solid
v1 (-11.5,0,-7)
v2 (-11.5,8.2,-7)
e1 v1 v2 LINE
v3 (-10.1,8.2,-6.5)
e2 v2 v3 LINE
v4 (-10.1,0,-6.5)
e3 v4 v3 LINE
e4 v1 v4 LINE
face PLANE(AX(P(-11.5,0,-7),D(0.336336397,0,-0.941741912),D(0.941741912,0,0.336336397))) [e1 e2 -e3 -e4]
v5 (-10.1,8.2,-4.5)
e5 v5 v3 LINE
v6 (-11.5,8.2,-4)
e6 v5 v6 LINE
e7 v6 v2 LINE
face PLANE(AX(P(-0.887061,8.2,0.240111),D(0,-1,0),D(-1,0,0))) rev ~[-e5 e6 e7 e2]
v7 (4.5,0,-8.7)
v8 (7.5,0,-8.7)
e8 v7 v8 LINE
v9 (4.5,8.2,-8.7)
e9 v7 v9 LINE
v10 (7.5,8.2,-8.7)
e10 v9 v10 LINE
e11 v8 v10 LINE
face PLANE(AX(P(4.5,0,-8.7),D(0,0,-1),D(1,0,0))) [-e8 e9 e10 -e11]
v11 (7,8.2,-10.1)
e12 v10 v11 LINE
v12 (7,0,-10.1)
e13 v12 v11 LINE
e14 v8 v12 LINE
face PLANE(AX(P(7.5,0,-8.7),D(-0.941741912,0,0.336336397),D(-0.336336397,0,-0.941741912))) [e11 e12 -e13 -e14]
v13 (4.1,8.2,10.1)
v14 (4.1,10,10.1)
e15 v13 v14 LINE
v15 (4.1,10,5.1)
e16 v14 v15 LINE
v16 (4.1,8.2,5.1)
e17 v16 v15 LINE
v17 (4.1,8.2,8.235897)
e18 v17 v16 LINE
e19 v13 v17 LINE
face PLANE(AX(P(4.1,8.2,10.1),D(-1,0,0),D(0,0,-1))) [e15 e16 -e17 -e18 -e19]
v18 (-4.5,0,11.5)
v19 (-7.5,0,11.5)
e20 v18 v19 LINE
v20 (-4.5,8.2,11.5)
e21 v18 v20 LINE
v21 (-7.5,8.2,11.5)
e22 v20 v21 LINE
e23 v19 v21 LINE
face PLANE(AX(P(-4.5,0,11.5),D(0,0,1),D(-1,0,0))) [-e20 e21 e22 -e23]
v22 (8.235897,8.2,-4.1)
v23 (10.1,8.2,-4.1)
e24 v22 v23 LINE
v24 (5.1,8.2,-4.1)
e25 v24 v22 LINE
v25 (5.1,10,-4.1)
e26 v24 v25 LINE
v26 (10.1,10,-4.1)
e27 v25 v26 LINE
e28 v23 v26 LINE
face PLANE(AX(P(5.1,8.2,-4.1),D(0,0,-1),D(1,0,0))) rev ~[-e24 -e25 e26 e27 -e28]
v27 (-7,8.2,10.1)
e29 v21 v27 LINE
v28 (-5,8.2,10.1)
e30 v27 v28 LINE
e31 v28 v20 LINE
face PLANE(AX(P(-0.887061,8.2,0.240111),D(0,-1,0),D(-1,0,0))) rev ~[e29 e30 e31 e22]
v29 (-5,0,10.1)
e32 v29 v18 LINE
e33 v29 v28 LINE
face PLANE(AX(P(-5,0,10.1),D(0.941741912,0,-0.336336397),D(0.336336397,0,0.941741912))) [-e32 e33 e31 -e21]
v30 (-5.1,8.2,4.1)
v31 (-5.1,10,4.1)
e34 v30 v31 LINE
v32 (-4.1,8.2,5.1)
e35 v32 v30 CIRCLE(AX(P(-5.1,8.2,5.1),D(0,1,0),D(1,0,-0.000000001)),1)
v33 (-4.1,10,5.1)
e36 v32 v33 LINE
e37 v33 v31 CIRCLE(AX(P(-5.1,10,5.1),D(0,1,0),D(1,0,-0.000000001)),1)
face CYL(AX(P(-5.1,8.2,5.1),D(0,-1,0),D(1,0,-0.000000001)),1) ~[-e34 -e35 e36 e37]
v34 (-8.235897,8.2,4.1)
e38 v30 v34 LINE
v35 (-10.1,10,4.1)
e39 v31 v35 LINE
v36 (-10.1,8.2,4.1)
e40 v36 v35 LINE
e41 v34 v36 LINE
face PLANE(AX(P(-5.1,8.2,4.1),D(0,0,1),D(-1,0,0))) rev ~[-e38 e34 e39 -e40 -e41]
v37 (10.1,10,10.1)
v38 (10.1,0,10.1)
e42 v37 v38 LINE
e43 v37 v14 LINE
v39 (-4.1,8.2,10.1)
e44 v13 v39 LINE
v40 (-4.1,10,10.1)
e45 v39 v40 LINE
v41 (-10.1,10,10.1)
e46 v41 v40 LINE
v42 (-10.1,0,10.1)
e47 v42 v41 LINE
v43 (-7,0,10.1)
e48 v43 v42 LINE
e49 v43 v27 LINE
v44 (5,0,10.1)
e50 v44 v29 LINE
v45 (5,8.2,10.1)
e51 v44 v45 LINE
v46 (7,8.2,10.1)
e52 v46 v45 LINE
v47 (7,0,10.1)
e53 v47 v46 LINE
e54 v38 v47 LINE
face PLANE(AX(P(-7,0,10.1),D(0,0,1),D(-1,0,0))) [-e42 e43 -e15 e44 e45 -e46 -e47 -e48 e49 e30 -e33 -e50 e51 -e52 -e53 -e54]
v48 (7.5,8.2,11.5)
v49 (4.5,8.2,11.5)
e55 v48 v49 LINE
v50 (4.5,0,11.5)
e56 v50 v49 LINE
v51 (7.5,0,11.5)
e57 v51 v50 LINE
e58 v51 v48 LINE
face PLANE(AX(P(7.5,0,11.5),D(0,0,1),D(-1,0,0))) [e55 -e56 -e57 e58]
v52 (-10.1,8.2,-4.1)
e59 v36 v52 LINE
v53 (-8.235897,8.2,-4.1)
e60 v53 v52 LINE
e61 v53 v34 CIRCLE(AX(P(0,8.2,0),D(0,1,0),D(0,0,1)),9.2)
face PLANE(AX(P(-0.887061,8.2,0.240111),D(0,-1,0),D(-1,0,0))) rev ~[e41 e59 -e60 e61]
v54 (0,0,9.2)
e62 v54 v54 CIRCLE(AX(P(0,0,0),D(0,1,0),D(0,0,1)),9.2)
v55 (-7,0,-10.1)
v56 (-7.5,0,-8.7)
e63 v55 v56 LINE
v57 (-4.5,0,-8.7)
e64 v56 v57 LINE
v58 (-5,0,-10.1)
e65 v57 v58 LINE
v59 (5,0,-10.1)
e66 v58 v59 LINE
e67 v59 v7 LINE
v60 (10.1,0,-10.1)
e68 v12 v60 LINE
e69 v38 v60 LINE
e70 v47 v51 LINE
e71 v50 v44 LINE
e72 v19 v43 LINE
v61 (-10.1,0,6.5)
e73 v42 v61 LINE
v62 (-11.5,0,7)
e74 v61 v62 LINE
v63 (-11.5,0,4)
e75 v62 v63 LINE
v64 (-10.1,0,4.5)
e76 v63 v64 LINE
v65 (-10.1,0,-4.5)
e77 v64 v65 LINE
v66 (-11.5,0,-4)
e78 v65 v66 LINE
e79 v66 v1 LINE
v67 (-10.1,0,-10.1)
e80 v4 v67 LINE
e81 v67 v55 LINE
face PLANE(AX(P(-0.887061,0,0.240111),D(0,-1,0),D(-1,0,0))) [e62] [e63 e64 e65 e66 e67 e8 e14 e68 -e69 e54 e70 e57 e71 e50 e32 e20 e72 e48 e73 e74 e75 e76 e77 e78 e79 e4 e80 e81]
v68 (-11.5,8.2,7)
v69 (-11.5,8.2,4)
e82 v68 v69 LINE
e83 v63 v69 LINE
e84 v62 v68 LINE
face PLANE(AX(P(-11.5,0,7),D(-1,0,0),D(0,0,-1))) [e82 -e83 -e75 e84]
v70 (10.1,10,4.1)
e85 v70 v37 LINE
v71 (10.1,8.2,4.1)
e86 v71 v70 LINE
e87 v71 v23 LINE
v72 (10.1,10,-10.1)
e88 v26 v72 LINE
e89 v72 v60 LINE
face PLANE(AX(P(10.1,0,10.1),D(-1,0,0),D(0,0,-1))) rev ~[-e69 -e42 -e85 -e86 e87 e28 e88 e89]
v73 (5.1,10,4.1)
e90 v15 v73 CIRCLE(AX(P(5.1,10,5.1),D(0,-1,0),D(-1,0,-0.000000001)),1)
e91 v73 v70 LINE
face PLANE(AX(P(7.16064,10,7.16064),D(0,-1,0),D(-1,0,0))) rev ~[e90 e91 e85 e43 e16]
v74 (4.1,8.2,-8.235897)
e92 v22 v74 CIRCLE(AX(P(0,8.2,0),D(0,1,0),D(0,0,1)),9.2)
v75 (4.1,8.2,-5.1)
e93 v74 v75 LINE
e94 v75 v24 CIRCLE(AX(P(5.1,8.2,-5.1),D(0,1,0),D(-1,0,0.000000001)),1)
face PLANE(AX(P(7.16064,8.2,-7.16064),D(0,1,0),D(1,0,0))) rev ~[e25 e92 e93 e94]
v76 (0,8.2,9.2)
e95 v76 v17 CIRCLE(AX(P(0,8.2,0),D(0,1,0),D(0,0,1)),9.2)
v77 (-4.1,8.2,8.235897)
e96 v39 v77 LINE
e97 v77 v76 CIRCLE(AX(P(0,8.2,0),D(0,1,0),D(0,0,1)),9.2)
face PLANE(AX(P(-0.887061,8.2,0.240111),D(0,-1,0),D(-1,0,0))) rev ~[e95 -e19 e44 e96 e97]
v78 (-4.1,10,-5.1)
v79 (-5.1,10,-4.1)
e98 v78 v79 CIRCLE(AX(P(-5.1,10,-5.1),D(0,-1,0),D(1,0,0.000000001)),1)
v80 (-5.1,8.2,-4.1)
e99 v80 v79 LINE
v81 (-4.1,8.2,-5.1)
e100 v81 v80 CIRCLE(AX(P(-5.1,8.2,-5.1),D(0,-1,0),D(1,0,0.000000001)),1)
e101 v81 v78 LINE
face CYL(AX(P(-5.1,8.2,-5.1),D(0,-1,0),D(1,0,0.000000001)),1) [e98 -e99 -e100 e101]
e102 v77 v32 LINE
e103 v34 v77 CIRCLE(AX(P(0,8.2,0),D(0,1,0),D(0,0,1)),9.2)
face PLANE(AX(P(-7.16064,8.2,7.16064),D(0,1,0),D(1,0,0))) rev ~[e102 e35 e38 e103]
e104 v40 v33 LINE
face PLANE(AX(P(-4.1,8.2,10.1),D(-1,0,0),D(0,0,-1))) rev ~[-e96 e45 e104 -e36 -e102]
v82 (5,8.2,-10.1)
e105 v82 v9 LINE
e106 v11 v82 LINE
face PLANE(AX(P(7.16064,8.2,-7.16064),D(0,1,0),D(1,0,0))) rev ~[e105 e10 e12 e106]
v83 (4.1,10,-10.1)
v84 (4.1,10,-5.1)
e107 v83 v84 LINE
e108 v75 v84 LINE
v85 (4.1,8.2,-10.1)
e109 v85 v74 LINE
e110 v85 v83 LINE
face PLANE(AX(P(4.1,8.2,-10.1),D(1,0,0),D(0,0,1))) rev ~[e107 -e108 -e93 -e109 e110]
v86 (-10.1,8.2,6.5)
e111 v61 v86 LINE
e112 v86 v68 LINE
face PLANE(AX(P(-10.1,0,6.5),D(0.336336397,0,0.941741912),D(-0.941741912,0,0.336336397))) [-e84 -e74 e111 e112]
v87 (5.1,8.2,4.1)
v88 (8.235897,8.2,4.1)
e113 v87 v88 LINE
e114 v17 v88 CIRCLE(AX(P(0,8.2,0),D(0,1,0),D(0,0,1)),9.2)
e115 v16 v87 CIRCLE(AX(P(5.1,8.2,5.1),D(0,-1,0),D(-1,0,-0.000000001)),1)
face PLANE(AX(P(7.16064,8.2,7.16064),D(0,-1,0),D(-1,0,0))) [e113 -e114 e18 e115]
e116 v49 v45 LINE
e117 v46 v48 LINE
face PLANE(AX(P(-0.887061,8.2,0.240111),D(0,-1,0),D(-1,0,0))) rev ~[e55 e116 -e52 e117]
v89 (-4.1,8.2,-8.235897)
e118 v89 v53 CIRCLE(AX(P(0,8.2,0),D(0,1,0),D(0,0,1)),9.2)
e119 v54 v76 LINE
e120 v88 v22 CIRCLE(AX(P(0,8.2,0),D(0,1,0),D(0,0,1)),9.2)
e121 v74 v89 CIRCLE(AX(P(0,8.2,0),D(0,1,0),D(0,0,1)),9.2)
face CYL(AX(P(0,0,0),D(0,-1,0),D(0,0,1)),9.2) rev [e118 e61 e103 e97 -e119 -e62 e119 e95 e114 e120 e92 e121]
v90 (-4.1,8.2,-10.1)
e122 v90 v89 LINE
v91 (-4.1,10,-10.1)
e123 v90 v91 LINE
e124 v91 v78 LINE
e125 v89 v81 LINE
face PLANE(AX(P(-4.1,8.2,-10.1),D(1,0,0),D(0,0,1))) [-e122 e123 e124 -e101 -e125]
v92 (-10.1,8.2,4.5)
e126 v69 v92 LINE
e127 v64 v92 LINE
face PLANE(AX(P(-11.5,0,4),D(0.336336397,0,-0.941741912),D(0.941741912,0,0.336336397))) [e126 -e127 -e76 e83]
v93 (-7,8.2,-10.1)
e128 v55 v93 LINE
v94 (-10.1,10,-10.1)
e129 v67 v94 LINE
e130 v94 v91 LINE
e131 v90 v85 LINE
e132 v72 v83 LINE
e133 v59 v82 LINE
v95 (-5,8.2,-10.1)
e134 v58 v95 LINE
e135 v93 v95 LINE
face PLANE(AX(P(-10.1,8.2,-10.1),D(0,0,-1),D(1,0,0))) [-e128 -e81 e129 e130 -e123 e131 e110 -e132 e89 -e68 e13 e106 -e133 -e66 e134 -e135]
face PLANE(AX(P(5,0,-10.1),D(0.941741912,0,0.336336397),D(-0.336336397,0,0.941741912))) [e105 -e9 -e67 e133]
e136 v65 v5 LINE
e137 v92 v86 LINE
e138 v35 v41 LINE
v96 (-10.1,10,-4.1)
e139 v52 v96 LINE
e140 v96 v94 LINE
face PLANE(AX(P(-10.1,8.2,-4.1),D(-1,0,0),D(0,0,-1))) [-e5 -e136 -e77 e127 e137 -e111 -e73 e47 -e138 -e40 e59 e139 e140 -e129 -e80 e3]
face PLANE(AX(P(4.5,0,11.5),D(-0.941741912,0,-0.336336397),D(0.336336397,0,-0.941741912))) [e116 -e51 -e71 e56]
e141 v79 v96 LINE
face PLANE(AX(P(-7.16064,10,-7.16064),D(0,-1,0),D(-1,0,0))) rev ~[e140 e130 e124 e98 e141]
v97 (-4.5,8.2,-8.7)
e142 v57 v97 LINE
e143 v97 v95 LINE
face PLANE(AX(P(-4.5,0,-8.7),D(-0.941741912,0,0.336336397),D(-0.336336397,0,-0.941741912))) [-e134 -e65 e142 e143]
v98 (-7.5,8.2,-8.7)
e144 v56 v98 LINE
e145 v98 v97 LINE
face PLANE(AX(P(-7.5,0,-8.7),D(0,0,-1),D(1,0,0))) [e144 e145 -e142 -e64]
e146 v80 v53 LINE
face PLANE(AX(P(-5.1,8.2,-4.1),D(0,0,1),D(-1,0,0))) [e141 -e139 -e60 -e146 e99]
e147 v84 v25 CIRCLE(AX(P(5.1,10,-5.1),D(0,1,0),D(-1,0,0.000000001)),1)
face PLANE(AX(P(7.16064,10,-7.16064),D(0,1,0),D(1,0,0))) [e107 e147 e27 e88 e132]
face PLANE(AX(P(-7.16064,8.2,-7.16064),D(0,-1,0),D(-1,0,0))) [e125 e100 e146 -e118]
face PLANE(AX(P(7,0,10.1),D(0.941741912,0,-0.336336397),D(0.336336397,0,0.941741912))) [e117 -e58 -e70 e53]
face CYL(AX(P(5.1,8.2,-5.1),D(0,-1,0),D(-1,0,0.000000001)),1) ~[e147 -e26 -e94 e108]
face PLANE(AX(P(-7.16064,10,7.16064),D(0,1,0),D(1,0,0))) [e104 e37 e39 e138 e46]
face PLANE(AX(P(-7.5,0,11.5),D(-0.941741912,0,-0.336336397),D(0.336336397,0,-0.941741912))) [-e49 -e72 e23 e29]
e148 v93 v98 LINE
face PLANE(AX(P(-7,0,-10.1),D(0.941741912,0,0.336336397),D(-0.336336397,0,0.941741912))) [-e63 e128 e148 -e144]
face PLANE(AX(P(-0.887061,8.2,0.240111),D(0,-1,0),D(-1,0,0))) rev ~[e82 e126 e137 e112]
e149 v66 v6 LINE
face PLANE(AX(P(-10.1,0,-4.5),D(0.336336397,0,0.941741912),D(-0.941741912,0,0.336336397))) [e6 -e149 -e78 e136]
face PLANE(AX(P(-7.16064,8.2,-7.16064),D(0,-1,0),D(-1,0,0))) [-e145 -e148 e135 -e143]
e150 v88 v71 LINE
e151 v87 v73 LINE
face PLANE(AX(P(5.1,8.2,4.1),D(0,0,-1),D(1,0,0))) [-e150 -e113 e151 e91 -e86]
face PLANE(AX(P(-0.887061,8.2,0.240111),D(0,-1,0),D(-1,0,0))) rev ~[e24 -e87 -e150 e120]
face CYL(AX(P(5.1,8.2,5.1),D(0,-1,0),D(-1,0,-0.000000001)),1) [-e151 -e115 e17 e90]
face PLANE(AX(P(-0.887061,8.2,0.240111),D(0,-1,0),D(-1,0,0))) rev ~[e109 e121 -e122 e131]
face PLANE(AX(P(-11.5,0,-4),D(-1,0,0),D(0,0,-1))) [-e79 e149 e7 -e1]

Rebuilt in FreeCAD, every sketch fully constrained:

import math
import FreeCAD as App
import Part
import Sketcher

V = App.Vector


def add_polygon(sketch, points):
    """Adds a closed chain of lines whose ends are joined by coincident constraints."""
    first, n = sketch.GeometryCount, len(points)
    for a, b in zip(points, points[1:] + points[:1]):
        sketch.addGeometry(Part.LineSegment(App.Vector(*a, 0), App.Vector(*b, 0)), False)
    for i in range(n):
        sketch.addConstraint(Sketcher.Constraint("Coincident", first + i, 2, first + (i + 1) % n, 1))

doc = App.newDocument("Part")
body = doc.addObject("PartDesign::Body", "Body")

# Sketch on XZ plane
sketch1 = body.newObject("Sketcher::SketchObject", "Sketch")
sketch1.AttachmentSupport = (doc.getObject("XZ_Plane"), [""])
sketch1.MapMode = "FlatFace"
add_polygon(sketch1, [(-7, -10.1), (-10.1, -10.1), (-10.1, -6.5), (-11.5, -7), (-11.5, -4), (-10.1, -4.5), (-10.1, 4.5), (-11.5, 4), (-11.5, 7), (-10.1, 6.5), (-10.1, 10.1), (-7, 10.1), (-7.5, 11.5), (-4.5, 11.5), (-5, 10.1), (5, 10.1), (4.5, 11.5), (7.5, 11.5), (7, 10.1), (10.1, 10.1), (10.1, -10.1), (7, -10.1), (7.5, -8.7), (4.5, -8.7), (5, -10.1), (-5, -10.1), (-4.5, -8.7), (-7.5, -8.7)])  # lines 0-27
sketch1.addGeometry(Part.Circle(V(0, 0, 0), V(0, 0, 1), 9.2), False)  # 28
sketch1.addConstraint([
    Sketcher.Constraint("Horizontal", 0),
    Sketcher.Constraint("Vertical", 1),
    Sketcher.Constraint("Vertical", 3),
    Sketcher.Constraint("Vertical", 5),
    Sketcher.Constraint("Vertical", 7),
    Sketcher.Constraint("Vertical", 9),
    Sketcher.Constraint("Horizontal", 10),
    Sketcher.Constraint("Horizontal", 12),
    Sketcher.Constraint("Horizontal", 14),
    Sketcher.Constraint("Horizontal", 16),
    Sketcher.Constraint("Horizontal", 18),
    Sketcher.Constraint("Vertical", 19),
    Sketcher.Constraint("Horizontal", 20),
    Sketcher.Constraint("Horizontal", 22),
    Sketcher.Constraint("Horizontal", 24),
    Sketcher.Constraint("Horizontal", 26),
    Sketcher.Constraint("Coincident", 28, 3, -1, 1),
    Sketcher.Constraint("Symmetric", 0, 2, 18, 2, -1, 1),
    Sketcher.Constraint("Symmetric", 9, 2, 19, 2, -1, 1),
    Sketcher.Constraint("Symmetric", 13, 2, 23, 2, -1, 1),
    Sketcher.Constraint("Symmetric", 12, 2, 15, 2, -2),
    Sketcher.Constraint("Symmetric", 10, 2, 17, 2, -2),
    Sketcher.Constraint("Symmetric", 22, 2, 25, 2, -2),
    Sketcher.Constraint("Symmetric", 3, 2, 6, 2, -1),
    Sketcher.Constraint("Parallel", 2, 6),
    Sketcher.Constraint("Parallel", 4, 8),
    Sketcher.Constraint("Perpendicular", 6, 11),
    Sketcher.Constraint("Perpendicular", 8, 13),
    Sketcher.Constraint("Parallel", 11, 15),
    Sketcher.Constraint("Parallel", 13, 17),
    Sketcher.Constraint("Parallel", 17, 21),
    Sketcher.Constraint("Parallel", 15, 23),
    Sketcher.Constraint("Parallel", 21, 25),
    Sketcher.Constraint("Parallel", 23, 27),
    Sketcher.Constraint("Horizontal", 10, 2, 13, 2),
    Sketcher.Constraint("Vertical", 1, 2, 4, 2),
    Sketcher.Constraint("Vertical", 17, 2, 20, 2),
    Sketcher.Constraint("Vertical", 16, 2, 21, 2),
    Sketcher.Constraint("Vertical", 15, 2, 22, 2),
    Sketcher.Constraint("Vertical", 11, 2, 26, 2),
    Sketcher.Constraint("Equal", 26, 3),
    Sketcher.Constraint("Equal", 3, 7),
    Sketcher.Constraint("Equal", 8, 11),
    Sketcher.Constraint("Diameter", 28, 18.4),
    Sketcher.Constraint("DistanceX", 12, 1, 12, 2, 3.0),
    Sketcher.Constraint("DistanceX", 14, 1, 14, 2, 10.0),
    Sketcher.Constraint("DistanceY", 5, 1, 5, 2, 9.0),
    Sketcher.Constraint("DistanceX", 0, 2, 0, 1, 3.1),
    Sketcher.Constraint("DistanceY", 1, 1, 1, 2, 3.6),
    Sketcher.Constraint("DistanceY", 19, 2, 19, 1, 20.2),
    Sketcher.Constraint("DistanceY", 8, 2, 11, 2, 5.0),
])
pad1 = body.newObject("PartDesign::Pad", "Pad")
pad1.Profile = sketch1
pad1.Length = 8.2
pad1.Reversed = True

# Sketch on XZ plane
sketch2 = body.newObject("Sketcher::SketchObject", "Sketch001")
sketch2.AttachmentSupport = (doc.getObject("XZ_Plane"), [""])
sketch2.MapMode = "FlatFace"
sketch2.AttachmentOffset = App.Placement(V(0, 0, -8.2), App.Rotation())
sketch2.addGeometry([
    Part.LineSegment(V(-4.1, -5.1, 0), V(-4.1, -10.1, 0)),  # 0
    Part.LineSegment(V(-4.1, -10.1, 0), V(-10.1, -10.1, 0)),  # 1
    Part.LineSegment(V(-10.1, -10.1, 0), V(-10.1, -4.1, 0)),  # 2
    Part.LineSegment(V(-10.1, -4.1, 0), V(-5.1, -4.1, 0)),  # 3
    Part.ArcOfCircle(Part.Circle(V(-5.1, -5.1, 0), V(0, 0, 1), 1), math.radians(0), math.radians(90)),  # 4
    Part.LineSegment(V(10.1, -4.1, 0), V(10.1, -10.1, 0)),  # 5
    Part.LineSegment(V(10.1, -10.1, 0), V(4.1, -10.1, 0)),  # 6
    Part.LineSegment(V(4.1, -10.1, 0), V(4.1, -5.1, 0)),  # 7
    Part.ArcOfCircle(Part.Circle(V(5.1, -5.1, 0), V(0, 0, 1), 1), math.radians(90), math.radians(180)),  # 8
    Part.LineSegment(V(5.1, -4.1, 0), V(10.1, -4.1, 0)),  # 9
    Part.LineSegment(V(4.1, 5.1, 0), V(4.1, 10.1, 0)),  # 10
    Part.LineSegment(V(4.1, 10.1, 0), V(10.1, 10.1, 0)),  # 11
    Part.LineSegment(V(10.1, 10.1, 0), V(10.1, 4.1, 0)),  # 12
    Part.LineSegment(V(10.1, 4.1, 0), V(5.1, 4.1, 0)),  # 13
    Part.ArcOfCircle(Part.Circle(V(5.1, 5.1, 0), V(0, 0, 1), 1), math.radians(-180), math.radians(-90)),  # 14
    Part.LineSegment(V(-10.1, 4.1, 0), V(-10.1, 10.1, 0)),  # 15
    Part.LineSegment(V(-10.1, 10.1, 0), V(-4.1, 10.1, 0)),  # 16
    Part.LineSegment(V(-4.1, 10.1, 0), V(-4.1, 5.1, 0)),  # 17
    Part.ArcOfCircle(Part.Circle(V(-5.1, 5.1, 0), V(0, 0, 1), 1), math.radians(-90), math.radians(0)),  # 18
    Part.LineSegment(V(-5.1, 4.1, 0), V(-10.1, 4.1, 0)),  # 19
], False)
sketch2.addConstraint([
    Sketcher.Constraint("Coincident", 0, 2, 1, 1),
    Sketcher.Constraint("Coincident", 1, 2, 2, 1),
    Sketcher.Constraint("Coincident", 2, 2, 3, 1),
    Sketcher.Constraint("Tangent", 3, 2, 4, 2),
    Sketcher.Constraint("Tangent", 4, 1, 0, 1),
    Sketcher.Constraint("Coincident", 5, 2, 6, 1),
    Sketcher.Constraint("Coincident", 6, 2, 7, 1),
    Sketcher.Constraint("Tangent", 7, 2, 8, 2),
    Sketcher.Constraint("Tangent", 8, 1, 9, 1),
    Sketcher.Constraint("Coincident", 9, 2, 5, 1),
    Sketcher.Constraint("Coincident", 10, 2, 11, 1),
    Sketcher.Constraint("Coincident", 11, 2, 12, 1),
    Sketcher.Constraint("Coincident", 12, 2, 13, 1),
    Sketcher.Constraint("Tangent", 13, 2, 14, 2),
    Sketcher.Constraint("Tangent", 14, 1, 10, 1),
    Sketcher.Constraint("Coincident", 15, 2, 16, 1),
    Sketcher.Constraint("Coincident", 16, 2, 17, 1),
    Sketcher.Constraint("Tangent", 17, 2, 18, 2),
    Sketcher.Constraint("Tangent", 18, 1, 19, 1),
    Sketcher.Constraint("Coincident", 19, 2, 15, 1),
    Sketcher.Constraint("Vertical", 0),
    Sketcher.Constraint("Horizontal", 1),
    Sketcher.Constraint("Vertical", 2),
    Sketcher.Constraint("Horizontal", 3),
    Sketcher.Constraint("Vertical", 5),
    Sketcher.Constraint("Horizontal", 6),
    Sketcher.Constraint("Vertical", 7),
    Sketcher.Constraint("Horizontal", 9),
    Sketcher.Constraint("Vertical", 10),
    Sketcher.Constraint("Horizontal", 11),
    Sketcher.Constraint("Vertical", 12),
    Sketcher.Constraint("Horizontal", 13),
    Sketcher.Constraint("Vertical", 15),
    Sketcher.Constraint("Horizontal", 16),
    Sketcher.Constraint("Vertical", 17),
    Sketcher.Constraint("Horizontal", 19),
    Sketcher.Constraint("Equal", 4, 8),
    Sketcher.Constraint("Equal", 8, 14),
    Sketcher.Constraint("Equal", 14, 18),
    Sketcher.Constraint("Symmetric", 4, 3, 14, 3, -1, 1),
    Sketcher.Constraint("Symmetric", 8, 3, 18, 3, -1, 1),
    Sketcher.Constraint("Symmetric", 1, 2, 11, 2, -1, 1),
    Sketcher.Constraint("Symmetric", 5, 2, 15, 2, -1, 1),
    Sketcher.Constraint("Symmetric", 4, 3, 8, 3, -2),
    Sketcher.Constraint("Symmetric", 1, 2, 5, 2, -2),
    Sketcher.Constraint("Equal", 19, 0),
    Sketcher.Constraint("Radius", 4, 1.0),
    Sketcher.Constraint("DistanceX", 1, 2, 1, 1, 6.0),
    Sketcher.Constraint("DistanceX", 4, 3, -1, 1, 5.1),
    Sketcher.Constraint("DistanceY", 4, 3, -1, 1, 5.1),
])
pad2 = body.newObject("PartDesign::Pad", "Pad001")
pad2.Profile = sketch2
pad2.Length = 1.8
pad2.Reversed = True

doc.recompute()
